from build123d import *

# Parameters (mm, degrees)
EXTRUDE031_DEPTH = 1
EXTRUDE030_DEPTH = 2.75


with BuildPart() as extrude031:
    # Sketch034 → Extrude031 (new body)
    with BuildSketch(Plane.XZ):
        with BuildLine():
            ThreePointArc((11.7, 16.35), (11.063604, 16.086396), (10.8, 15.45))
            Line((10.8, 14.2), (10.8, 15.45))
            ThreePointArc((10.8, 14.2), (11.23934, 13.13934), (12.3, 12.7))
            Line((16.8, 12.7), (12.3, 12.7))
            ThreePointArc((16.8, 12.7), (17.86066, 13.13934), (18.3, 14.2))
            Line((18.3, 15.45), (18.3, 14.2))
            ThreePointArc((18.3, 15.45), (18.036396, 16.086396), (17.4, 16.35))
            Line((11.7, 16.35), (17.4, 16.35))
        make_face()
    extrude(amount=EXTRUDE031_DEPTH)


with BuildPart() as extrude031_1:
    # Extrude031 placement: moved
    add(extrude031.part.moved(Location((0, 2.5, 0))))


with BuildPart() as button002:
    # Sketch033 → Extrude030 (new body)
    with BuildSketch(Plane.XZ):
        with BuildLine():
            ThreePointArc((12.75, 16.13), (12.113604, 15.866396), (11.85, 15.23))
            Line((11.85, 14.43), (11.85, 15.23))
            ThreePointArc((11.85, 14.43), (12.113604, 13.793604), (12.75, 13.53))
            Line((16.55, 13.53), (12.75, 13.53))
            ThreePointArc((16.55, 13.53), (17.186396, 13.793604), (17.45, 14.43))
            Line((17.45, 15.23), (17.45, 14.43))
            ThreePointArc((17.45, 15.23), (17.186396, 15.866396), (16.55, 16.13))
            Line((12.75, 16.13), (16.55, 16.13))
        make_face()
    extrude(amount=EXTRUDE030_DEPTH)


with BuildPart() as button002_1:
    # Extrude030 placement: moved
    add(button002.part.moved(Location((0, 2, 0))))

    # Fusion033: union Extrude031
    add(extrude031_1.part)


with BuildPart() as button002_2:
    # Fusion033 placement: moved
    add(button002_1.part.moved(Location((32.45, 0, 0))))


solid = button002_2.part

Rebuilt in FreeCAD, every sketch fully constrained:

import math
import FreeCAD as App
import Part
import Sketcher
from FreeCAD import Vector

doc = App.newDocument("Part")
body = doc.addObject("PartDesign::Body", "Body")

# Sketch on XZ plane
sketch1 = body.newObject("Sketcher::SketchObject", "Sketch")
sketch1.AttachmentSupport = (doc.getObject("XZ_Plane"), [""])
sketch1.MapMode = "FlatFace"
sketch1.addGeometry(Part.ArcOfCircle(Part.Circle(Vector(11.7, 15.4, 0), Vector(0, 0, 1), 0.9), math.radians(90), math.radians(180)), False)
sketch1.addGeometry(Part.LineSegment(Vector(10.8, 15.4, 0), Vector(10.8, 14.2, 0)), False)
sketch1.addGeometry(Part.ArcOfCircle(Part.Circle(Vector(12.3, 14.2, 0), Vector(0, 0, 1), 1.5), math.radians(-180), math.radians(-90)), False)
sketch1.addGeometry(Part.LineSegment(Vector(12.3, 12.7, 0), Vector(16.8, 12.7, 0)), False)
sketch1.addGeometry(Part.ArcOfCircle(Part.Circle(Vector(16.8, 14.2, 0), Vector(0, 0, 1), 1.5), math.radians(-90), math.radians(0)), False)
sketch1.addGeometry(Part.LineSegment(Vector(18.3, 14.2, 0), Vector(18.3, 15.4, 0)), False)
sketch1.addGeometry(Part.ArcOfCircle(Part.Circle(Vector(17.4, 15.4, 0), Vector(0, 0, 1), 0.9), math.radians(0), math.radians(90)), False)
sketch1.addGeometry(Part.LineSegment(Vector(17.4, 16.4, 0), Vector(11.7, 16.4, 0)), False)
sketch1.addConstraint(Sketcher.Constraint("Tangent", 0, 2, 1, 1))
sketch1.addConstraint(Sketcher.Constraint("Tangent", 1, 2, 2, 1))
sketch1.addConstraint(Sketcher.Constraint("Tangent", 2, 2, 3, 1))
sketch1.addConstraint(Sketcher.Constraint("Tangent", 3, 2, 4, 1))
sketch1.addConstraint(Sketcher.Constraint("Tangent", 4, 2, 5, 1))
sketch1.addConstraint(Sketcher.Constraint("Tangent", 5, 2, 6, 1))
sketch1.addConstraint(Sketcher.Constraint("Tangent", 6, 2, 7, 1))
sketch1.addConstraint(Sketcher.Constraint("Tangent", 7, 2, 0, 1))
sketch1.addConstraint(Sketcher.Constraint("Vertical", 1))
sketch1.addConstraint(Sketcher.Constraint("Horizontal", 3))
sketch1.addConstraint(Sketcher.Constraint("Vertical", 5))
sketch1.addConstraint(Sketcher.Constraint("Horizontal", 7))
sketch1.addConstraint(Sketcher.Constraint("Equal", 2, 4))
sketch1.addConstraint(Sketcher.Constraint("Equal", 0, 6))
sketch1.addConstraint(Sketcher.Constraint("Radius", 0, 0.9))
sketch1.addConstraint(Sketcher.Constraint("Radius", 2, 1.500001))
sketch1.addConstraint(Sketcher.Constraint("DistanceX", 3, 1, 3, 2, 4.5))
sketch1.addConstraint(Sketcher.Constraint("DistanceY", 1, 2, 1, 1, 1.25))
sketch1.addConstraint(Sketcher.Constraint("DistanceX", -1, 1, 0, 3, 11.7))
sketch1.addConstraint(Sketcher.Constraint("DistanceY", -1, 1, 2, 3, 14.200001))
pad1 = body.newObject("PartDesign::Pad", "Pad")
pad1.Profile = sketch1
pad1.Length = 1
body2 = doc.addObject("PartDesign::Body", "Body001")
doc.recompute()

body.Placement = App.Placement(Vector(0, 2.5, 0), App.Rotation(Vector(0, 0, 1), 0))
boolean = body2.newObject("PartDesign::Boolean", "Boolean")
boolean.Type = "Fuse"
boolean.addObjects([body])
body3 = doc.addObject("PartDesign::Body", "Body002")

# Sketch on XZ plane
sketch2 = body3.newObject("Sketcher::SketchObject", "Sketch001")
sketch2.AttachmentSupport = (doc.getObject("XZ_Plane002"), [""])
sketch2.MapMode = "FlatFace"
sketch2.addGeometry(Part.ArcOfCircle(Part.Circle(Vector(12.8, 15.2, 0), Vector(0, 0, 1), 0.9), math.radians(90), math.radians(180)), False)
sketch2.addGeometry(Part.LineSegment(Vector(11.8, 15.2, 0), Vector(11.8, 14.4, 0)), False)
sketch2.addGeometry(Part.ArcOfCircle(Part.Circle(Vector(12.8, 14.4, 0), Vector(0, 0, 1), 0.9), math.radians(-180), math.radians(-90)), False)
sketch2.addGeometry(Part.LineSegment(Vector(12.8, 13.5, 0), Vector(16.6, 13.5, 0)), False)
sketch2.addGeometry(Part.ArcOfCircle(Part.Circle(Vector(16.5, 14.4, 0), Vector(0, 0, 1), 0.9), math.radians(-90), math.radians(0)), False)
sketch2.addGeometry(Part.LineSegment(Vector(17.4, 14.4, 0), Vector(17.4, 15.2, 0)), False)
sketch2.addGeometry(Part.ArcOfCircle(Part.Circle(Vector(16.5, 15.2, 0), Vector(0, 0, 1), 0.9), math.radians(0), math.radians(90)), False)
sketch2.addGeometry(Part.LineSegment(Vector(16.6, 16.1, 0), Vector(12.8, 16.1, 0)), False)
sketch2.addConstraint(Sketcher.Constraint("Tangent", 0, 2, 1, 1))
sketch2.addConstraint(Sketcher.Constraint("Tangent", 1, 2, 2, 1))
sketch2.addConstraint(Sketcher.Constraint("Tangent", 2, 2, 3, 1))
sketch2.addConstraint(Sketcher.Constraint("Tangent", 3, 2, 4, 1))
sketch2.addConstraint(Sketcher.Constraint("Tangent", 4, 2, 5, 1))
sketch2.addConstraint(Sketcher.Constraint("Tangent", 5, 2, 6, 1))
sketch2.addConstraint(Sketcher.Constraint("Tangent", 6, 2, 7, 1))
sketch2.addConstraint(Sketcher.Constraint("Tangent", 7, 2, 0, 1))
sketch2.addConstraint(Sketcher.Constraint("Vertical", 1))
sketch2.addConstraint(Sketcher.Constraint("Horizontal", 3))
sketch2.addConstraint(Sketcher.Constraint("Vertical", 5))
sketch2.addConstraint(Sketcher.Constraint("Horizontal", 7))
sketch2.addConstraint(Sketcher.Constraint("Equal", 0, 2))
sketch2.addConstraint(Sketcher.Constraint("Equal", 2, 4))
sketch2.addConstraint(Sketcher.Constraint("Equal", 4, 6))
sketch2.addConstraint(Sketcher.Constraint("Radius", 0, 0.9))
sketch2.addConstraint(Sketcher.Constraint("DistanceX", 3, 1, 3, 2, 3.8))
sketch2.addConstraint(Sketcher.Constraint("DistanceY", 1, 2, 1, 1, 0.8))
sketch2.addConstraint(Sketcher.Constraint("DistanceX", -1, 1, 0, 3, 12.75))
sketch2.addConstraint(Sketcher.Constraint("DistanceY", -1, 1, 0, 3, 15.23))
pad2 = body3.newObject("PartDesign::Pad", "Pad001")
pad2.Profile = sketch2
pad2.Length = 2.75
body4 = doc.addObject("PartDesign::Body", "Body003")
doc.recompute()

body3.Placement = App.Placement(Vector(0, 2, 0), App.Rotation(Vector(0, 0, 1), 0))
boolean2 = body4.newObject("PartDesign::Boolean", "Boolean001")
boolean2.Type = "Fuse"
boolean2.addObjects([body3])
doc.recompute()

boolean3 = body4.newObject("PartDesign::Boolean", "Boolean002")
boolean3.Type = "Fuse"
boolean3.addObjects([body2])
body5 = doc.addObject("PartDesign::Body", "Body004")
doc.recompute()

body4.Placement = App.Placement(Vector(32.45, 0, 0), App.Rotation(Vector(0, 0, 1), 0))
boolean4 = body5.newObject("PartDesign::Boolean", "Boolean003")
boolean4.Type = "Fuse"
boolean4.addObjects([body4])

doc.recompute()
